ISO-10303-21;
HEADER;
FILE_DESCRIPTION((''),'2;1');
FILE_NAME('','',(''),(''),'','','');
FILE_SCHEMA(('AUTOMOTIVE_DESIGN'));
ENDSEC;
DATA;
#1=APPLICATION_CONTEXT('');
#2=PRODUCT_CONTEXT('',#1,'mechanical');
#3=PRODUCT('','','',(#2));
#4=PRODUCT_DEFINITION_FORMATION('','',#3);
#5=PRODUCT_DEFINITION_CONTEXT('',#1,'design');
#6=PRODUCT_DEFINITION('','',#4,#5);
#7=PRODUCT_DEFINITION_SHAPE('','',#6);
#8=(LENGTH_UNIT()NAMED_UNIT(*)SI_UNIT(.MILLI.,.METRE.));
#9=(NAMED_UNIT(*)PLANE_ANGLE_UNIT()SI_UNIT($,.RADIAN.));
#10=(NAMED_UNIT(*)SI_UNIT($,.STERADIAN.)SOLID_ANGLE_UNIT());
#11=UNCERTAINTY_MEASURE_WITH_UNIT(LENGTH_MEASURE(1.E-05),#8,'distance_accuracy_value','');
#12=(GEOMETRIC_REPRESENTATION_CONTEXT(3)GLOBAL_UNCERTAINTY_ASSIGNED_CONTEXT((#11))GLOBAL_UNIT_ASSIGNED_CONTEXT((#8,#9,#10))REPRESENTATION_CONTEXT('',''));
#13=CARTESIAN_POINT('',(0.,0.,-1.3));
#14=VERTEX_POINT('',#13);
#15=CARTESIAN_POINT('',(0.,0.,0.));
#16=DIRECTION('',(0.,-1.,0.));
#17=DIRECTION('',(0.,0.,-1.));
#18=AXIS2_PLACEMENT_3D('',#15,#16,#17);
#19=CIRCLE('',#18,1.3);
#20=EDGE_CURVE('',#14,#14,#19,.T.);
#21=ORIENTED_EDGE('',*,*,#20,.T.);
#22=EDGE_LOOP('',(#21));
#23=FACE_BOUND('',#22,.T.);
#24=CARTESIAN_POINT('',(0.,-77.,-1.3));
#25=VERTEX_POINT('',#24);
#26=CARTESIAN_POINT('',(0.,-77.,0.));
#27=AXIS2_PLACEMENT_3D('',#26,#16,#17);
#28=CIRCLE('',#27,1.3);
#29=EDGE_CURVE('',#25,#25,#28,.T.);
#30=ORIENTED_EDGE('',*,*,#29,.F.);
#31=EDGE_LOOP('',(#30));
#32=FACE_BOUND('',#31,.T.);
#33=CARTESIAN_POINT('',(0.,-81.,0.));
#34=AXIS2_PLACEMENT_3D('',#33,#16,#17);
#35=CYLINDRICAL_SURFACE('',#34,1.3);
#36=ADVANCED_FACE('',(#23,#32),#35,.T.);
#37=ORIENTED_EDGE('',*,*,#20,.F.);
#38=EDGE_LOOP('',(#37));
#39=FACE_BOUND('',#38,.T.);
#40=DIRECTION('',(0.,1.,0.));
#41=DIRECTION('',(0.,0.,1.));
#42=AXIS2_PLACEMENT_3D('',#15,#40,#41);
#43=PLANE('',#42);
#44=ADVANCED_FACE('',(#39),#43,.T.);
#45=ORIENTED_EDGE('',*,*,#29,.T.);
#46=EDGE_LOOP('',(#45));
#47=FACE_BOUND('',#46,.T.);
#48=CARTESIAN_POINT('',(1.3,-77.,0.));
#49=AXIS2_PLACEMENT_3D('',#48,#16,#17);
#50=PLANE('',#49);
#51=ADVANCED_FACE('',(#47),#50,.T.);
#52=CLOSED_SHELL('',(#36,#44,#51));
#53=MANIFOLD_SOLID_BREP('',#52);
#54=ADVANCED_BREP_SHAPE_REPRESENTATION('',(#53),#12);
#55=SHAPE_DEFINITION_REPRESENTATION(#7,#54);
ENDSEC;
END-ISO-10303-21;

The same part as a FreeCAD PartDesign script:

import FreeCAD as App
import Part
import Sketcher

V = App.Vector
Q = App.Units.Quantity

doc = App.newDocument("Part")
body = doc.addObject("PartDesign::Body", "Body")

# Sketch on XY plane
sketch1 = body.newObject("Sketcher::SketchObject", "Sketch")
sketch1.AttachmentSupport = (doc.getObject("XY_Plane"), [""])
sketch1.MapMode = "FlatFace"
sketch1.addGeometry([
    Part.LineSegment(V(0, 0, 0), V(0, -77, 0)),
    Part.LineSegment(V(0, -77, 0), V(1.3, -77, 0)),
    Part.LineSegment(V(1.3, -77, 0), V(1.3, 0, 0)),
    Part.LineSegment(V(1.3, 0, 0), V(0, 0, 0)),
], False)
sketch1.addConstraint([
    Sketcher.Constraint("Coincident", 0, 2, 1, 1),
    Sketcher.Constraint("Coincident", 1, 2, 2, 1),
    Sketcher.Constraint("Coincident", 2, 2, 3, 1),
    Sketcher.Constraint("Coincident", 3, 2, 0, 1),
    Sketcher.Constraint("Vertical", 0),
    Sketcher.Constraint("Horizontal", 1),
    Sketcher.Constraint("Vertical", 2),
    Sketcher.Constraint("Horizontal", 3),
    Sketcher.Constraint("Coincident", 3, 2, -1, 1),
    Sketcher.Constraint("DistanceY", 0, 2, 0, 1, Q("77 mm")),
    Sketcher.Constraint("DistanceX", 1, 1, 1, 2, Q("1.3 mm")),
])
revolution = body.newObject("PartDesign::Revolution", "Revolution")
revolution.Profile = sketch1
revolution.ReferenceAxis = (sketch1, ["V_Axis"])
revolution.Angle = 360

doc.recompute()
